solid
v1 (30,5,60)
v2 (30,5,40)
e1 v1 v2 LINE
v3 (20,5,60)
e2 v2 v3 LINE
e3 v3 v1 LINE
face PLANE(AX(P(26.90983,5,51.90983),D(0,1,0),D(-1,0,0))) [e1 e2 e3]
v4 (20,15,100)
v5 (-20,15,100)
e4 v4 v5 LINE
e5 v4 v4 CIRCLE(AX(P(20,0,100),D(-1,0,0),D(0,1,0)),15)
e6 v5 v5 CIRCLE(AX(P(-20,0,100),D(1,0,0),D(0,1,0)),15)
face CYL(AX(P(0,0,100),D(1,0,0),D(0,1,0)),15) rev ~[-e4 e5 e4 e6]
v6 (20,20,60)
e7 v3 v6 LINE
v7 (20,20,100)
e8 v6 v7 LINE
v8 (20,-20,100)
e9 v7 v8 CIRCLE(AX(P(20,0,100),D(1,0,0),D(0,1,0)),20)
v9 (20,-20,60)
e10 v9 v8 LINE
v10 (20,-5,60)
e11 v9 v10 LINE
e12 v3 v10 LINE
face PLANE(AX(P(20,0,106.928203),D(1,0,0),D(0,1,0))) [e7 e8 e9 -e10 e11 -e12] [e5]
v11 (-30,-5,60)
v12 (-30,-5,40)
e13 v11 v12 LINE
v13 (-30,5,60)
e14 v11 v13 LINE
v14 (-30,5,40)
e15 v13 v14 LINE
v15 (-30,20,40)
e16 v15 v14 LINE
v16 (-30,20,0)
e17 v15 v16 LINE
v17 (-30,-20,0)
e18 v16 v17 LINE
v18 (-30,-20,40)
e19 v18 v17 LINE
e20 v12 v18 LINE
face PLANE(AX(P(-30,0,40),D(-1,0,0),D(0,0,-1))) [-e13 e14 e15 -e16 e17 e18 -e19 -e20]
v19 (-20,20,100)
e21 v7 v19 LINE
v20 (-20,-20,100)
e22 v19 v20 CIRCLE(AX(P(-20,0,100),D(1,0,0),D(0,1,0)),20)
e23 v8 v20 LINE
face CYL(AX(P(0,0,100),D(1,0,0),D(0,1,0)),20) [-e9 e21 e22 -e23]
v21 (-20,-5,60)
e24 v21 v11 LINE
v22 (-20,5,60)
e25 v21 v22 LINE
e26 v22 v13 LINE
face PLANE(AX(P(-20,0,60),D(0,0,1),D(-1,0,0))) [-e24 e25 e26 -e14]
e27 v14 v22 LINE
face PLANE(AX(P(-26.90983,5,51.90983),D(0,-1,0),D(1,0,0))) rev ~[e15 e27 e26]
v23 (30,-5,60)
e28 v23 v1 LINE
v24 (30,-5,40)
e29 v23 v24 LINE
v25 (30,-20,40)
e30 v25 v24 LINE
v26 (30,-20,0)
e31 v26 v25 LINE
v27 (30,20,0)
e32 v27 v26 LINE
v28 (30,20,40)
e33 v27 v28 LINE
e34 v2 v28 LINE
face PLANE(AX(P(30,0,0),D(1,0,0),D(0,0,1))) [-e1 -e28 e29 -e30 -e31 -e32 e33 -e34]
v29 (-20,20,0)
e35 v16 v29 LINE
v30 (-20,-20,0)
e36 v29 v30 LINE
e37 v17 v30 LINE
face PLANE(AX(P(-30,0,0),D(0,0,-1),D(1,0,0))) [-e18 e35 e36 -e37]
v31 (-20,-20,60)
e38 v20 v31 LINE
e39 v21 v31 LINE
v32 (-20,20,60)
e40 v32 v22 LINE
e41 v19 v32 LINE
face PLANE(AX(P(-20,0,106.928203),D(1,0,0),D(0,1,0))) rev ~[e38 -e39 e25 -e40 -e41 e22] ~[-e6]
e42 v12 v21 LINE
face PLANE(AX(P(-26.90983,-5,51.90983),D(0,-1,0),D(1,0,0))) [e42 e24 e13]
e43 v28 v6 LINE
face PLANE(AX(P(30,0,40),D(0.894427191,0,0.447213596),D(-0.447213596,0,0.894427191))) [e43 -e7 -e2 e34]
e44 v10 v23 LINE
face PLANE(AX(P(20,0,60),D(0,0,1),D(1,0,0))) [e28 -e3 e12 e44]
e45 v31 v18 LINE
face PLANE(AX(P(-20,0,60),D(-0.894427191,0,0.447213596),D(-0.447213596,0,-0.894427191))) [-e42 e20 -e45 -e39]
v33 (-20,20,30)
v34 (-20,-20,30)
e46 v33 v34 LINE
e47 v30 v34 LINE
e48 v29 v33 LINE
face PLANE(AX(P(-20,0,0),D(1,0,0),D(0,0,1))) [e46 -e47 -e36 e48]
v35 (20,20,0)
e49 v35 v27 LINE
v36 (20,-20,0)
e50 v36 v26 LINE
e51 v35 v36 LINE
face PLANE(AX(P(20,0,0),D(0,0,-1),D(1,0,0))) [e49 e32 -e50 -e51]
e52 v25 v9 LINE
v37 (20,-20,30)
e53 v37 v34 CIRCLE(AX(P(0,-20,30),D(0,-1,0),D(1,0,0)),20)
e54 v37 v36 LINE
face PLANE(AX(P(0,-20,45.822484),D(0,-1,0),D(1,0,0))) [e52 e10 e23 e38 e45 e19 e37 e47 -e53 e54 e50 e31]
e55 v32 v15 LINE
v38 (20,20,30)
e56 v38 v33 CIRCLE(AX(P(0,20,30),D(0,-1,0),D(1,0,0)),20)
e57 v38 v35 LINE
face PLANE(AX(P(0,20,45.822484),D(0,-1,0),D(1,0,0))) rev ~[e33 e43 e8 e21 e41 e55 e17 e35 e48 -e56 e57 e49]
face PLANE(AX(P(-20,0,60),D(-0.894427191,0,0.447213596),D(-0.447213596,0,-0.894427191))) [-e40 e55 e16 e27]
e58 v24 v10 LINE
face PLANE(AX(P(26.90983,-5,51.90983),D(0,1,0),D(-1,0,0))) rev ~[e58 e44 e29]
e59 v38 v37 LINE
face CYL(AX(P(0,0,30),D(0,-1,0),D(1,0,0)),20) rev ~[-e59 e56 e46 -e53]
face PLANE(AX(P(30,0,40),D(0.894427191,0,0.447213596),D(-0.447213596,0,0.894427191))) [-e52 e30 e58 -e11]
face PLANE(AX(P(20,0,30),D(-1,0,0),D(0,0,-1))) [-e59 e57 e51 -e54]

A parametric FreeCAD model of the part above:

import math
import FreeCAD as App
import Part
import Sketcher
Q = App.Units.Quantity

doc = App.newDocument("Part")
body = doc.addObject("PartDesign::Body", "Body")

# Sketch on XZ plane
sketch1 = body.newObject("Sketcher::SketchObject", "Sketch")
sketch1.AttachmentSupport = (doc.getObject("XZ_Plane"), [""])
sketch1.MapMode = "FlatFace"
sketch1.addGeometry(Part.LineSegment(App.Vector(20, 100, 0), App.Vector(-20, 100, 0)), False)
sketch1.addGeometry(Part.LineSegment(App.Vector(-20, 100, 0), App.Vector(-20, 60, 0)), False)
sketch1.addGeometry(Part.LineSegment(App.Vector(-20, 60, 0), App.Vector(-30, 40, 0)), False)
sketch1.addGeometry(Part.LineSegment(App.Vector(-30, 40, 0), App.Vector(-30, 0, 0)), False)
sketch1.addGeometry(Part.LineSegment(App.Vector(-30, 0, 0), App.Vector(-20, 0, 0)), False)
sketch1.addGeometry(Part.LineSegment(App.Vector(-20, 0, 0), App.Vector(-20, 30, 0)), False)
sketch1.addGeometry(Part.ArcOfCircle(Part.Circle(App.Vector(0, 30, 0), App.Vector(0, 0, 1), 20), math.radians(0), math.radians(180)), False)
sketch1.addGeometry(Part.LineSegment(App.Vector(20, 30, 0), App.Vector(20, 0, 0)), False)
sketch1.addGeometry(Part.LineSegment(App.Vector(20, 0, 0), App.Vector(30, 0, 0)), False)
sketch1.addGeometry(Part.LineSegment(App.Vector(30, 0, 0), App.Vector(30, 40, 0)), False)
sketch1.addGeometry(Part.LineSegment(App.Vector(30, 40, 0), App.Vector(20, 60, 0)), False)
sketch1.addGeometry(Part.LineSegment(App.Vector(20, 60, 0), App.Vector(20, 100, 0)), False)
sketch1.addConstraint(Sketcher.Constraint("Coincident", 0, 2, 1, 1))
sketch1.addConstraint(Sketcher.Constraint("Coincident", 1, 2, 2, 1))
sketch1.addConstraint(Sketcher.Constraint("Coincident", 2, 2, 3, 1))
sketch1.addConstraint(Sketcher.Constraint("Coincident", 3, 2, 4, 1))
sketch1.addConstraint(Sketcher.Constraint("Coincident", 4, 2, 5, 1))
sketch1.addConstraint(Sketcher.Constraint("Tangent", 5, 2, 6, 2))
sketch1.addConstraint(Sketcher.Constraint("Tangent", 6, 1, 7, 1))
sketch1.addConstraint(Sketcher.Constraint("Coincident", 7, 2, 8, 1))
sketch1.addConstraint(Sketcher.Constraint("Coincident", 8, 2, 9, 1))
sketch1.addConstraint(Sketcher.Constraint("Coincident", 9, 2, 10, 1))
sketch1.addConstraint(Sketcher.Constraint("Coincident", 10, 2, 11, 1))
sketch1.addConstraint(Sketcher.Constraint("Coincident", 11, 2, 0, 1))
sketch1.addConstraint(Sketcher.Constraint("Horizontal", 0))
sketch1.addConstraint(Sketcher.Constraint("Vertical", 1))
sketch1.addConstraint(Sketcher.Constraint("Vertical", 3))
sketch1.addConstraint(Sketcher.Constraint("Horizontal", 4))
sketch1.addConstraint(Sketcher.Constraint("Vertical", 5))
sketch1.addConstraint(Sketcher.Constraint("Vertical", 7))
sketch1.addConstraint(Sketcher.Constraint("Horizontal", 8))
sketch1.addConstraint(Sketcher.Constraint("Vertical", 9))
sketch1.addConstraint(Sketcher.Constraint("Vertical", 11))
sketch1.addConstraint(Sketcher.Constraint("Symmetric", 4, 2, 7, 2, -1, 1))
sketch1.addConstraint(Sketcher.Constraint("Symmetric", 3, 2, 8, 2, -2))
sketch1.addConstraint(Sketcher.Constraint("Symmetric", 1, 2, 10, 2, -2))
sketch1.addConstraint(Sketcher.Constraint("Horizontal", 2, 2, 9, 2))
sketch1.addConstraint(Sketcher.Constraint("Vertical", 1, 2, 4, 2))
sketch1.addConstraint(Sketcher.Constraint("Equal", 0, 1))
sketch1.addConstraint(Sketcher.Constraint("Equal", 1, 3))
sketch1.addConstraint(Sketcher.Constraint("Radius", 6, Q("20 mm")))
sketch1.addConstraint(Sketcher.Constraint("DistanceX", 4, 1, 4, 2, Q("10 mm")))
sketch1.addConstraint(Sketcher.Constraint("DistanceY", 5, 1, 5, 2, Q("30 mm")))
sketch1.addConstraint(Sketcher.Constraint("DistanceY", -1, 1, 0, 2, Q("100 mm")))
pad1 = body.newObject("PartDesign::Pad", "Pad")
pad1.Profile = sketch1
pad1.Length = 40
pad1.Midplane = True

# Sketch on YZ plane
sketch2 = body.newObject("Sketcher::SketchObject", "Sketch001")
sketch2.AttachmentSupport = (doc.getObject("YZ_Plane"), [""])
sketch2.MapMode = "FlatFace"
sketch2.addGeometry(Part.ArcOfCircle(Part.Circle(App.Vector(0, 100, 0), App.Vector(0, 0, 1), 20), math.radians(0), math.radians(180)), False)
sketch2.addGeometry(Part.LineSegment(App.Vector(-20, 100, 0), App.Vector(20, 100, 0)), False)
sketch2.addConstraint(Sketcher.Constraint("Coincident", 0, 1, 1, 2))
sketch2.addConstraint(Sketcher.Constraint("Coincident", 1, 1, 0, 2))
sketch2.addConstraint(Sketcher.Constraint("Horizontal", 1))
sketch2.addConstraint(Sketcher.Constraint("PointOnObject", 0, 3, -2))
sketch2.addConstraint(Sketcher.Constraint("Radius", 0, Q("20 mm")))
sketch2.addConstraint(Sketcher.Constraint("DistanceY", -1, 1, 0, 3, Q("100 mm")))
sketch2.addConstraint(Sketcher.Constraint("DistanceY", -1, 1, 0, 1, Q("100 mm")))
pad2 = body.newObject("PartDesign::Pad", "Pad001")
pad2.Profile = sketch2
pad2.Length = 40
pad2.Midplane = True

# Sketch on YZ plane
sketch3 = body.newObject("Sketcher::SketchObject", "Sketch002")
sketch3.AttachmentSupport = (doc.getObject("YZ_Plane"), [""])
sketch3.MapMode = "FlatFace"
sketch3.addGeometry(Part.Circle(App.Vector(0, 100, 0), App.Vector(0, 0, 1), 15), False)
sketch3.addConstraint(Sketcher.Constraint("PointOnObject", 0, 3, -2))
sketch3.addConstraint(Sketcher.Constraint("Diameter", 0, Q("30 mm")))
sketch3.addConstraint(Sketcher.Constraint("DistanceY", -1, 1, 0, 3, Q("100 mm")))
pocket1 = body.newObject("PartDesign::Pocket", "Pocket")
pocket1.Profile = sketch3
pocket1.Type = "ThroughAll"
pocket1.Midplane = True

# Sketch on XZ plane
sketch4 = body.newObject("Sketcher::SketchObject", "Sketch003")
sketch4.AttachmentSupport = (doc.getObject("XZ_Plane"), [""])
sketch4.MapMode = "FlatFace"
sketch4.addGeometry(Part.LineSegment(App.Vector(30, 60, 0), App.Vector(20, 60, 0)), False)
sketch4.addGeometry(Part.LineSegment(App.Vector(20, 60, 0), App.Vector(30, 40, 0)), False)
sketch4.addGeometry(Part.LineSegment(App.Vector(30, 40, 0), App.Vector(30, 60, 0)), False)
sketch4.addGeometry(Part.LineSegment(App.Vector(-30, 60, 0), App.Vector(-30, 40, 0)), False)
sketch4.addGeometry(Part.LineSegment(App.Vector(-30, 40, 0), App.Vector(-20, 60, 0)), False)
sketch4.addGeometry(Part.LineSegment(App.Vector(-20, 60, 0), App.Vector(-30, 60, 0)), False)
sketch4.addConstraint(Sketcher.Constraint("Coincident", 0, 2, 1, 1))
sketch4.addConstraint(Sketcher.Constraint("Coincident", 1, 2, 2, 1))
sketch4.addConstraint(Sketcher.Constraint("Coincident", 2, 2, 0, 1))
sketch4.addConstraint(Sketcher.Constraint("Coincident", 3, 2, 4, 1))
sketch4.addConstraint(Sketcher.Constraint("Coincident", 4, 2, 5, 1))
sketch4.addConstraint(Sketcher.Constraint("Coincident", 5, 2, 3, 1))
sketch4.addConstraint(Sketcher.Constraint("Horizontal", 0))
sketch4.addConstraint(Sketcher.Constraint("Vertical", 2))
sketch4.addConstraint(Sketcher.Constraint("Vertical", 3))
sketch4.addConstraint(Sketcher.Constraint("Horizontal", 5))
sketch4.addConstraint(Sketcher.Constraint("Symmetric", 1, 2, 3, 2, -2))
sketch4.addConstraint(Sketcher.Constraint("Symmetric", 0, 2, 4, 2, -2))
sketch4.addConstraint(Sketcher.Constraint("DistanceX", 0, 2, 0, 1, Q("10 mm")))
sketch4.addConstraint(Sketcher.Constraint("DistanceY", 2, 1, 2, 2, Q("20 mm")))
sketch4.addConstraint(Sketcher.Constraint("DistanceX", -1, 1, 0, 2, Q("20 mm")))
sketch4.addConstraint(Sketcher.Constraint("DistanceY", -1, 1, 0, 2, Q("60 mm")))
pad3 = body.newObject("PartDesign::Pad", "Pad002")
pad3.Profile = sketch4
pad3.Length = 10
pad3.Midplane = True

doc.recompute()
